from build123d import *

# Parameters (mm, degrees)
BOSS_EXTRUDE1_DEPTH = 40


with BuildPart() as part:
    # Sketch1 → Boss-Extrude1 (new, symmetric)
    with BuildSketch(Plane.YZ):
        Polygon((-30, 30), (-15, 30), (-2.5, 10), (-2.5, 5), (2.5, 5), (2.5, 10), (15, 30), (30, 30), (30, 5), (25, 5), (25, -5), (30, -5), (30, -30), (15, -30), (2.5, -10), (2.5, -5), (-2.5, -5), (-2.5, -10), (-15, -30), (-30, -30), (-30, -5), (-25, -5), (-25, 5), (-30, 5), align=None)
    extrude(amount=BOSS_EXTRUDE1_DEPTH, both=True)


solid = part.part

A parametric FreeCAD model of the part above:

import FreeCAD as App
import Part
import Sketcher
from FreeCAD import Vector


def add_polygon(sketch, points):
    """Adds a closed chain of lines whose ends are joined by coincident constraints."""
    first, n = sketch.GeometryCount, len(points)
    for a, b in zip(points, points[1:] + points[:1]):
        sketch.addGeometry(Part.LineSegment(App.Vector(*a, 0), App.Vector(*b, 0)), False)
    for i in range(n):
        sketch.addConstraint(Sketcher.Constraint("Coincident", first + i, 2, first + (i + 1) % n, 1))

doc = App.newDocument("Part")
body = doc.addObject("PartDesign::Body", "Body")

sketch1 = body.newObject("Sketcher::SketchObject", "Sketch")
sketch1.AttachmentSupport = (doc.getObject("YZ_Plane"), [""])
sketch1.MapMode = "FlatFace"
add_polygon(sketch1, [(-15, 30), (-30, 30), (-30, 5), (-25, 5), (-25, -5), (-30, -5), (-30, -30), (-15, -30), (-2.5, -10), (-2.5, -5), (2.5, -5), (2.5, -10), (15, -30), (30, -30), (30, -5), (25, -5), (25, 5), (30, 5), (30, 30), (15, 30), (2.5, 10), (2.5, 5), (-2.5, 5), (-2.5, 10)])
sketch1.addConstraint([
    Sketcher.Constraint("Horizontal", 0),
    Sketcher.Constraint("Vertical", 1),
    Sketcher.Constraint("Horizontal", 2),
    Sketcher.Constraint("Vertical", 3),
    Sketcher.Constraint("Horizontal", 4),
    Sketcher.Constraint("Vertical", 5),
    Sketcher.Constraint("Horizontal", 6),
    Sketcher.Constraint("Vertical", 8),
    Sketcher.Constraint("Horizontal", 9),
    Sketcher.Constraint("Vertical", 10),
    Sketcher.Constraint("Horizontal", 12),
    Sketcher.Constraint("Vertical", 13),
    Sketcher.Constraint("Horizontal", 14),
    Sketcher.Constraint("Vertical", 15),
    Sketcher.Constraint("Horizontal", 16),
    Sketcher.Constraint("Vertical", 17),
    Sketcher.Constraint("Horizontal", 18),
    Sketcher.Constraint("Vertical", 20),
    Sketcher.Constraint("Horizontal", 21),
    Sketcher.Constraint("Vertical", 22),
    Sketcher.Constraint("Symmetric", 0, 2, 12, 2, -1, 1),
    Sketcher.Constraint("Symmetric", 2, 2, 14, 2, -1, 1),
    Sketcher.Constraint("Symmetric", 4, 2, 16, 2, -1, 1),
    Sketcher.Constraint("Symmetric", 6, 2, 18, 2, -1, 1),
    Sketcher.Constraint("Symmetric", 7, 2, 19, 2, -1, 1),
    Sketcher.Constraint("Symmetric", 9, 2, 21, 2, -1, 1),
    Sketcher.Constraint("Symmetric", 7, 2, 10, 2, -2),
    Sketcher.Constraint("Symmetric", 6, 2, 11, 2, -2),
    Sketcher.Constraint("Symmetric", 4, 2, 13, 2, -2),
    Sketcher.Constraint("Parallel", 11, 23),
    Sketcher.Constraint("Horizontal", 4, 2, 8, 2),
    Sketcher.Constraint("Horizontal", 19, 2, 22, 2),
    Sketcher.Constraint("Equal", 4, 9),
    Sketcher.Constraint("Equal", 21, 8),
    Sketcher.Constraint("DistanceX", 0, 2, 0, 1, 15.0),
    Sketcher.Constraint("DistanceX", 2, 1, 2, 2, 5.0),
    Sketcher.Constraint("DistanceY", 1, 2, 1, 1, 25.0),
    Sketcher.Constraint("DistanceY", 3, 2, 3, 1, 10.0),
    Sketcher.Constraint("DistanceX", 0, 2, -1, 1, 30.0),
])
pad1 = body.newObject("PartDesign::Pad", "Pad")
pad1.Profile = sketch1
pad1.Length = 80
pad1.Midplane = True

doc.recompute()
